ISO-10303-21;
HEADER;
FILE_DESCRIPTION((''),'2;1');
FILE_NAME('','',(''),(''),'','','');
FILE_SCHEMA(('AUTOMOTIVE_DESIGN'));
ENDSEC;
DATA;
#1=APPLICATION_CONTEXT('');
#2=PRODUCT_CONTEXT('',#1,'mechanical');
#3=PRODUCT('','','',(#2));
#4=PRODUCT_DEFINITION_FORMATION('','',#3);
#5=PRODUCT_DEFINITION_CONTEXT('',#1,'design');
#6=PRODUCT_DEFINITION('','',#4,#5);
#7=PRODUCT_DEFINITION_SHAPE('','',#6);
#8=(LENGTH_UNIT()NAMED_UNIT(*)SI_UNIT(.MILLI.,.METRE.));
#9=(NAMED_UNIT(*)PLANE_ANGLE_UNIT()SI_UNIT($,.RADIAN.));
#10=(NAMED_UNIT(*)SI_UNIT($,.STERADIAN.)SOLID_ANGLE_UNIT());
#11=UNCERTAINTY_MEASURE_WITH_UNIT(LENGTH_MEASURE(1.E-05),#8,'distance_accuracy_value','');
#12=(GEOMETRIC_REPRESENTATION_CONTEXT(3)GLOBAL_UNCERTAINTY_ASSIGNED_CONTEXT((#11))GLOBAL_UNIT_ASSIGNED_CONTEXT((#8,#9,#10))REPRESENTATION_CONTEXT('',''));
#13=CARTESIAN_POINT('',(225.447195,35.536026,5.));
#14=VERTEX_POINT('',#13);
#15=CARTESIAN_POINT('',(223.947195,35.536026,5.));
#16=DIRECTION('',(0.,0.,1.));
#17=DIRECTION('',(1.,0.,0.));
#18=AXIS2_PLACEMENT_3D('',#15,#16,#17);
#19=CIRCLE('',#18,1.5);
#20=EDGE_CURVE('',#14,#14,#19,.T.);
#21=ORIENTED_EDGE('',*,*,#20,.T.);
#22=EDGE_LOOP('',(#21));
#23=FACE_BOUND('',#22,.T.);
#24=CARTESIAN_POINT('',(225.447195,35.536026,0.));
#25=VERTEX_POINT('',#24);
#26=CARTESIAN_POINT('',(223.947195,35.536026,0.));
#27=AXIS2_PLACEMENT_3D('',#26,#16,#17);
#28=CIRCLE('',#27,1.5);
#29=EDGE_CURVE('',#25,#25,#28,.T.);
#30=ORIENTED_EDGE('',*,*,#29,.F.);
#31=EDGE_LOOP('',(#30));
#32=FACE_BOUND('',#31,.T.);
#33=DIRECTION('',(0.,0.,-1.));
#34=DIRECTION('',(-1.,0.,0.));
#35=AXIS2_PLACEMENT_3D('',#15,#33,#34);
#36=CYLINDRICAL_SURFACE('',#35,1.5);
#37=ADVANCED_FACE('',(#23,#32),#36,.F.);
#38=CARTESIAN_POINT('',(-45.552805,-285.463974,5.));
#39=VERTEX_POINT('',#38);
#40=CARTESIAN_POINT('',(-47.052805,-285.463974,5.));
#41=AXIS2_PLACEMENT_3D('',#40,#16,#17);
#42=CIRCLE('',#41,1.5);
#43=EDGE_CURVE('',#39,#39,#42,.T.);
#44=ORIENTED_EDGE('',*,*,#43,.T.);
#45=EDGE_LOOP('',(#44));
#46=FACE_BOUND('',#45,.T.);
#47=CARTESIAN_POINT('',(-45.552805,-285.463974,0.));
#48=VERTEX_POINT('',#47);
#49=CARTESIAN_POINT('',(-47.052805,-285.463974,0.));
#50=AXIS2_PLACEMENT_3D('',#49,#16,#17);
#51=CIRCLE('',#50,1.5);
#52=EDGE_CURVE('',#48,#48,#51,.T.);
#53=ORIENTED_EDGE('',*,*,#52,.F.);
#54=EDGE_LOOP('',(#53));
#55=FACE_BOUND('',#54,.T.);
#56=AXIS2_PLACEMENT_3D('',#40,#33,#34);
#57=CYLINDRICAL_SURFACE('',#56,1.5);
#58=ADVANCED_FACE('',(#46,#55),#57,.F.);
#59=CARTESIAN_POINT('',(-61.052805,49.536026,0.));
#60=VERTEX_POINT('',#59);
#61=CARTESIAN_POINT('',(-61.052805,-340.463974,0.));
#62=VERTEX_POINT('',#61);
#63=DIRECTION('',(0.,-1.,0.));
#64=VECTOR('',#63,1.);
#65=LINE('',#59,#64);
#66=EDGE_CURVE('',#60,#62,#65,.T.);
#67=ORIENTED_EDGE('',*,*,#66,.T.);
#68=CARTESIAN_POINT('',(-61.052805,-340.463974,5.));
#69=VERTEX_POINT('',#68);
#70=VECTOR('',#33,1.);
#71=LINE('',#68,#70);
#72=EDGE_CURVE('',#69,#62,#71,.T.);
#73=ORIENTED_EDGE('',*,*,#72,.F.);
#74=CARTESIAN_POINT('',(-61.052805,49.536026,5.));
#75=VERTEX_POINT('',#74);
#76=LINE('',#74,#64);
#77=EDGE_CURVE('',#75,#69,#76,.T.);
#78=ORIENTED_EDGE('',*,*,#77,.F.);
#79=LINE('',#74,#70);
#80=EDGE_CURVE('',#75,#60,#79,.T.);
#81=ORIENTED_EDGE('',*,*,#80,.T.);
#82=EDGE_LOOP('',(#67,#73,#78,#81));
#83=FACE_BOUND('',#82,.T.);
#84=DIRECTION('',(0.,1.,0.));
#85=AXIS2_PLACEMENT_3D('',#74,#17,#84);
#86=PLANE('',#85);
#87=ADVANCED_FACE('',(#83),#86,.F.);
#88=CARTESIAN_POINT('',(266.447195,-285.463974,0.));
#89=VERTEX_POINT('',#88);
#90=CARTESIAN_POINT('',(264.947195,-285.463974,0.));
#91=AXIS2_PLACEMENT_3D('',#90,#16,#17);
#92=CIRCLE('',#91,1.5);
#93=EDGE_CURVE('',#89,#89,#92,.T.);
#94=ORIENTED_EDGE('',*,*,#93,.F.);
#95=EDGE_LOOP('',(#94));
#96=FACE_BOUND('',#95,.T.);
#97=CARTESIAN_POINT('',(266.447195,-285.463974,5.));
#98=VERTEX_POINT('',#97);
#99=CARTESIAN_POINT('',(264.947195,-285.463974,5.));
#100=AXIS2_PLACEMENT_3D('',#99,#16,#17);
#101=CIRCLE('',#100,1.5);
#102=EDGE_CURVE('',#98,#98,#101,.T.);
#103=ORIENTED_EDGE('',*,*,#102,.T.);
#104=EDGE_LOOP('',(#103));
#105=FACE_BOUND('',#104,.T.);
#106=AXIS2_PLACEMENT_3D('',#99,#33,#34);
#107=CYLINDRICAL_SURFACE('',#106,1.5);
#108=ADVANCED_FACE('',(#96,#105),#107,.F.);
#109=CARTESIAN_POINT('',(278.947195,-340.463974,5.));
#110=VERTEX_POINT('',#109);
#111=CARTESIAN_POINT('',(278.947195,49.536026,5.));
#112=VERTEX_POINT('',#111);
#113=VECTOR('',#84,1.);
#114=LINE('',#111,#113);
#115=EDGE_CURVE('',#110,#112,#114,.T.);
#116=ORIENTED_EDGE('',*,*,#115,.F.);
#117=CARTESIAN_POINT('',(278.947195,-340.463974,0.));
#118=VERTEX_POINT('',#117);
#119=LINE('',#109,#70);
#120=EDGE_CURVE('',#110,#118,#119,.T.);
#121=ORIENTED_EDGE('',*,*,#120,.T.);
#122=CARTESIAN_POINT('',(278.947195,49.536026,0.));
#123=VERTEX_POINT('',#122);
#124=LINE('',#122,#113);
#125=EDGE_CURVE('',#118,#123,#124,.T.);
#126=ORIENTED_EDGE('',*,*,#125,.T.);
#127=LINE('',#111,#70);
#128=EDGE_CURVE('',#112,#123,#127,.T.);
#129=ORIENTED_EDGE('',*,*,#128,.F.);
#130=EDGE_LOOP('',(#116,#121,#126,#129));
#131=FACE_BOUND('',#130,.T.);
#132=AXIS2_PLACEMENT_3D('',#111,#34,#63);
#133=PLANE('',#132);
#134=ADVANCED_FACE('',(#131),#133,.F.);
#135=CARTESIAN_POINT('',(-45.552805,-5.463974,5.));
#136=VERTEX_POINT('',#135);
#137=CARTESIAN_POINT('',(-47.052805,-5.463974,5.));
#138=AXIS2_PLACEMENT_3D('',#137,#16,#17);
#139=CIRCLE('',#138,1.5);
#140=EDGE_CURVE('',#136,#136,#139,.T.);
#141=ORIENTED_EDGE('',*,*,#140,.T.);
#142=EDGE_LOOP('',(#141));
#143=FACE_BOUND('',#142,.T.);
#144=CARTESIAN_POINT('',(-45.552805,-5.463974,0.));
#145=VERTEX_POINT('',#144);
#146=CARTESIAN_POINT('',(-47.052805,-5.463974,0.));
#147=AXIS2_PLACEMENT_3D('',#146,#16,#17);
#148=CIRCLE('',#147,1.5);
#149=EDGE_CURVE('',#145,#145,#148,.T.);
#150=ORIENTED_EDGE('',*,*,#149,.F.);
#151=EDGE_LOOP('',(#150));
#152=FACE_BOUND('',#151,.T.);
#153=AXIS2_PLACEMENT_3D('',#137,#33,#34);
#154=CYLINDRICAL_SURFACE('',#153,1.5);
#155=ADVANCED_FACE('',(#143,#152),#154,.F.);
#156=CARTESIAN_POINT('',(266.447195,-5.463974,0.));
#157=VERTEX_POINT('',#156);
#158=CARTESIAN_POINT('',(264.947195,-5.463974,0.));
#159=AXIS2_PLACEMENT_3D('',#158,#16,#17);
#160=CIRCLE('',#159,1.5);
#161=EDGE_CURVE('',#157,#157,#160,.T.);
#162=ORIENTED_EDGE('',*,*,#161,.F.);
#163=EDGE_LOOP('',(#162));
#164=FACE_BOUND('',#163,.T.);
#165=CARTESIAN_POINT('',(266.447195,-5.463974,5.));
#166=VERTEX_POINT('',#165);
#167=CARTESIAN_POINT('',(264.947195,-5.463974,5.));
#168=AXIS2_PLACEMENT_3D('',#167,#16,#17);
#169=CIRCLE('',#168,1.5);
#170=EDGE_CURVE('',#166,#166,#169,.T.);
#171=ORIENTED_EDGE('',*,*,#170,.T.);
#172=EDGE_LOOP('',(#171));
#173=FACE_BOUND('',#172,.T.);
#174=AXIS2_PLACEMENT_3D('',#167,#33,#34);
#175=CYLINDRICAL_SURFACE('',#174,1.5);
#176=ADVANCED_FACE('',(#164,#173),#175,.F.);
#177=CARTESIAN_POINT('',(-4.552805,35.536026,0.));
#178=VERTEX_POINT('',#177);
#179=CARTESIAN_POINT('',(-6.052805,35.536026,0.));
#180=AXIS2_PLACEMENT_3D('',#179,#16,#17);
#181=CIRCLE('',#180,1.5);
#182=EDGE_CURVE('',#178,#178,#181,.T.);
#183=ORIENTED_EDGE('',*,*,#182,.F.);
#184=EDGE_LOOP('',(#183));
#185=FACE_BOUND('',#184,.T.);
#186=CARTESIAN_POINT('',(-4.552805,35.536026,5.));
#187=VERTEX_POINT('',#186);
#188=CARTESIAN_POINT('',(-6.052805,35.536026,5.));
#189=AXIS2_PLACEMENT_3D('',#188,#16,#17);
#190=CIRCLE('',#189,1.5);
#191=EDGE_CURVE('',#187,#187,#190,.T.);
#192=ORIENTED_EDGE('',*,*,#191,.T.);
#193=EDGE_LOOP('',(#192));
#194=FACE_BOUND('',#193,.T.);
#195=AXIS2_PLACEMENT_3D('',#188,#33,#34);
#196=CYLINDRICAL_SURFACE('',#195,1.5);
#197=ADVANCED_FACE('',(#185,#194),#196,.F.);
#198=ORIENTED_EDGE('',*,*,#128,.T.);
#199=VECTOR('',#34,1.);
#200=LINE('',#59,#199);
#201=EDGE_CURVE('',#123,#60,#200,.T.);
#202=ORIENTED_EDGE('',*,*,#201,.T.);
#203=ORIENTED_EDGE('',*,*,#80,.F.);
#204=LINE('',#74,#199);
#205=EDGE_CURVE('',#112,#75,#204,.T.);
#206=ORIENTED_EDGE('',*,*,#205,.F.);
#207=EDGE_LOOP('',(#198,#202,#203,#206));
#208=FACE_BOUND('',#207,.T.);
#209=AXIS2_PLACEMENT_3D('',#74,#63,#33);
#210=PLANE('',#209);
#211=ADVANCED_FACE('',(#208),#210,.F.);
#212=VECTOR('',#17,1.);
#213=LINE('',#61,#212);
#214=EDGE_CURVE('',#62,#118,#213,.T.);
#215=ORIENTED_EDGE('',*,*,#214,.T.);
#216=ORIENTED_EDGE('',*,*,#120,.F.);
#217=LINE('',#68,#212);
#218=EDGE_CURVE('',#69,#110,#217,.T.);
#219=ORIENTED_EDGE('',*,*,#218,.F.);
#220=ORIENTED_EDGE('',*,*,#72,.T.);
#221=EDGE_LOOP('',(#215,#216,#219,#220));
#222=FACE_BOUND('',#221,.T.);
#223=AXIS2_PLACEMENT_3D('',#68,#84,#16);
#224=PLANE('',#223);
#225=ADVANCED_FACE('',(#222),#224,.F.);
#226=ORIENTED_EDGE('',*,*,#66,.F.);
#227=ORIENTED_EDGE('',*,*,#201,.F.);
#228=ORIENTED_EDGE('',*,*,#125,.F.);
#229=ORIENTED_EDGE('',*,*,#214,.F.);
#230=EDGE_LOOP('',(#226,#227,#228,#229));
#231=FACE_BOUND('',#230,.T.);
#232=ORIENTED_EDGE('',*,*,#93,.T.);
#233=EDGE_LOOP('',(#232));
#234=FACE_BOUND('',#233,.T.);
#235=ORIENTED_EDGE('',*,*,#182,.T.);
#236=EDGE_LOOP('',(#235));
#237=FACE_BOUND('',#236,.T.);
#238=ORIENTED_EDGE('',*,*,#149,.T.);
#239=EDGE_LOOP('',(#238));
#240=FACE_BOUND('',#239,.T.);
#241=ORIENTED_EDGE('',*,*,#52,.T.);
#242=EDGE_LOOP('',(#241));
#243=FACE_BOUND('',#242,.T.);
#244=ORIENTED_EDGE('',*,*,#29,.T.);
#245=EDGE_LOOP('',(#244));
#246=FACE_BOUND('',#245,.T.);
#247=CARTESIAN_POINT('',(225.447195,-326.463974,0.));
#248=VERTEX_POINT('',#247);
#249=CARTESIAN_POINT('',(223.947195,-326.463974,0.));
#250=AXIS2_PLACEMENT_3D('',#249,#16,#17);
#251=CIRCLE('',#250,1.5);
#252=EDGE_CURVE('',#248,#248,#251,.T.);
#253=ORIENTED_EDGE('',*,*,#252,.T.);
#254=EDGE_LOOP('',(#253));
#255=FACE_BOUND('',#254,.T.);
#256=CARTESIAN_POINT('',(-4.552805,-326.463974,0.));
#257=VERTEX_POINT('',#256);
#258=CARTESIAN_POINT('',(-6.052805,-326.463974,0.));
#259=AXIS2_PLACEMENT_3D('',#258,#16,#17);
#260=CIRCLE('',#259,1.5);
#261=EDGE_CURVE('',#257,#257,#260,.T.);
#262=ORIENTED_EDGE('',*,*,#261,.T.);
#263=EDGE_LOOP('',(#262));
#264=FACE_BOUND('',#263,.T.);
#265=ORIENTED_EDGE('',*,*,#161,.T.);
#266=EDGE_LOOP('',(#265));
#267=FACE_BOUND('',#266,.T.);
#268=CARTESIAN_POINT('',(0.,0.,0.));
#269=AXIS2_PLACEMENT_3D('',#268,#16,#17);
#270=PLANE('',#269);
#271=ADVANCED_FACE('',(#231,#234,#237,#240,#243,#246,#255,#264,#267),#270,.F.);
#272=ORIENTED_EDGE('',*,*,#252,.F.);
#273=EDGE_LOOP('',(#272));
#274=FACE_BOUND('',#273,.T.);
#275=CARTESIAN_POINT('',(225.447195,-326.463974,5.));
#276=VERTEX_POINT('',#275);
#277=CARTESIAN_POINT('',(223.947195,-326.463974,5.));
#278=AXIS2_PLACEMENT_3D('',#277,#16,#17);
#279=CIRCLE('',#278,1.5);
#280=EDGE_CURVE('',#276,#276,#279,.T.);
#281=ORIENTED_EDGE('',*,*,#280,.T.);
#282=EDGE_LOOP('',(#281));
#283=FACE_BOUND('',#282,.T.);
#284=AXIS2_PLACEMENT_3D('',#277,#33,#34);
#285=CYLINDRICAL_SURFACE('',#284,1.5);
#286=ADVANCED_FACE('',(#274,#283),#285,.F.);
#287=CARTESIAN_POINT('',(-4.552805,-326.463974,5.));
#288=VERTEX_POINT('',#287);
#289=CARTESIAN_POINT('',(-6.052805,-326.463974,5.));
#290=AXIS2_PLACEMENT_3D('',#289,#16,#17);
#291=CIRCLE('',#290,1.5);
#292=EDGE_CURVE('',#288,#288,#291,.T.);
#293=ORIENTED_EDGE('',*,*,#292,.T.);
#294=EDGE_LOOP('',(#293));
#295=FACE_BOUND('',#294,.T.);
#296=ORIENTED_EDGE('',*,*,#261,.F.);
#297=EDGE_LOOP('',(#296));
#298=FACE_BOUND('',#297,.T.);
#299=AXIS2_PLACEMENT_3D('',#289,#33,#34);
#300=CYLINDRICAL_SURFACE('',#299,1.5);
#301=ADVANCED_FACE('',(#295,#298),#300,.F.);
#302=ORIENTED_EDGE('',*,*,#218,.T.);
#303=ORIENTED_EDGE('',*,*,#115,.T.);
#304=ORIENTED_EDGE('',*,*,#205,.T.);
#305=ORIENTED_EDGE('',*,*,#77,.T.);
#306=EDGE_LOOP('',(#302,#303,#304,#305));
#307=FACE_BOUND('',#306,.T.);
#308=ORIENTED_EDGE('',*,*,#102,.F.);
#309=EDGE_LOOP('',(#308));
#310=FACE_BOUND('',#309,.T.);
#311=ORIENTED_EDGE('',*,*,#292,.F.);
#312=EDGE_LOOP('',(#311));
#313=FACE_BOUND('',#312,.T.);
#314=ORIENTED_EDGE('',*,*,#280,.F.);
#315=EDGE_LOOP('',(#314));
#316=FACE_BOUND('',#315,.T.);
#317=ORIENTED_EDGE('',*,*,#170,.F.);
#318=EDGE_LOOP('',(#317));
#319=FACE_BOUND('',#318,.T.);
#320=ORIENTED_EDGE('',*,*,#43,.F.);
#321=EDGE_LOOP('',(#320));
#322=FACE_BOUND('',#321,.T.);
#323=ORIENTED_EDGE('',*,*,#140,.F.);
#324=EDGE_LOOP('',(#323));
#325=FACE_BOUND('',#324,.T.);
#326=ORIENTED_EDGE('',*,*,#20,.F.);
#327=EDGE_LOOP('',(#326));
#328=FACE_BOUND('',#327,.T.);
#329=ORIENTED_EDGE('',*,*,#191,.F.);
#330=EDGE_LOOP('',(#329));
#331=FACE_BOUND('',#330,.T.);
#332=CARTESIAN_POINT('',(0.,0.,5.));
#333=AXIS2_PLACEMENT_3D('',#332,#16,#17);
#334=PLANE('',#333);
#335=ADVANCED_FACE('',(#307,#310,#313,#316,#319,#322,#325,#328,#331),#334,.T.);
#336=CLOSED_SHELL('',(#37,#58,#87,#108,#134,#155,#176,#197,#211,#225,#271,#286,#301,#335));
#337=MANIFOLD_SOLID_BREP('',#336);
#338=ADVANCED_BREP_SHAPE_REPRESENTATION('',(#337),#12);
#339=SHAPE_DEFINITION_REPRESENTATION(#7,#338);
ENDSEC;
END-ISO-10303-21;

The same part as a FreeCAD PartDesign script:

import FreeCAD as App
import Part
import Sketcher
from FreeCAD import Vector
Q = App.Units.Quantity


def add_polygon(sketch, points):
    """Adds a closed chain of lines whose ends are joined by coincident constraints."""
    first, n = sketch.GeometryCount, len(points)
    for a, b in zip(points, points[1:] + points[:1]):
        sketch.addGeometry(Part.LineSegment(App.Vector(*a, 0), App.Vector(*b, 0)), False)
    for i in range(n):
        sketch.addConstraint(Sketcher.Constraint("Coincident", first + i, 2, first + (i + 1) % n, 1))

doc = App.newDocument("Part")
body = doc.addObject("PartDesign::Body", "Body")

# Sketch on XY plane
sketch1 = body.newObject("Sketcher::SketchObject", "Sketch")
sketch1.AttachmentSupport = (doc.getObject("XY_Plane"), [""])
sketch1.MapMode = "FlatFace"
add_polygon(sketch1, [(-61.1, 49.5), (-61.1, -340.5), (278.9, -340.5), (278.9, 49.5)])  # lines 0-3
sketch1.addGeometry(Part.Circle(Vector(-47.1, -285.5, 0), Vector(0, 0, 1), 1.5), False)  # 4
sketch1.addGeometry(Part.Circle(Vector(-6.1, -326.5, 0), Vector(0, 0, 1), 1.5), False)  # 5
sketch1.addGeometry(Part.Circle(Vector(223.9, -326.5, 0), Vector(0, 0, 1), 1.5), False)  # 6
sketch1.addGeometry(Part.Circle(Vector(264.9, -285.5, 0), Vector(0, 0, 1), 1.5), False)  # 7
sketch1.addGeometry(Part.Circle(Vector(-47.1, -5.5, 0), Vector(0, 0, 1), 1.5), False)  # 8
sketch1.addGeometry(Part.Circle(Vector(-6.1, 35.5, 0), Vector(0, 0, 1), 1.5), False)  # 9
sketch1.addGeometry(Part.Circle(Vector(223.9, 35.5, 0), Vector(0, 0, 1), 1.5), False)  # 10
sketch1.addGeometry(Part.Circle(Vector(264.9, -5.5, 0), Vector(0, 0, 1), 1.5), False)  # 11
sketch1.addConstraint([
    Sketcher.Constraint("Vertical", 0),
    Sketcher.Constraint("Horizontal", 1),
    Sketcher.Constraint("Vertical", 2),
    Sketcher.Constraint("Horizontal", 3),
    Sketcher.Constraint("Equal", 4, 5),
    Sketcher.Constraint("Equal", 5, 6),
    Sketcher.Constraint("Equal", 6, 7),
    Sketcher.Constraint("Equal", 7, 8),
    Sketcher.Constraint("Equal", 8, 9),
    Sketcher.Constraint("Equal", 9, 10),
    Sketcher.Constraint("Equal", 10, 11),
    Sketcher.Constraint("Horizontal", 5, 3, 6, 3),
    Sketcher.Constraint("Horizontal", 4, 3, 7, 3),
    Sketcher.Constraint("Horizontal", 9, 3, 10, 3),
    Sketcher.Constraint("Horizontal", 8, 3, 11, 3),
    Sketcher.Constraint("Vertical", 4, 3, 8, 3),
    Sketcher.Constraint("Vertical", 5, 3, 9, 3),
    Sketcher.Constraint("Vertical", 6, 3, 10, 3),
    Sketcher.Constraint("Vertical", 7, 3, 11, 3),
    Sketcher.Constraint("Diameter", 4, Q("3 mm")),
    Sketcher.Constraint("DistanceX", 1, 1, 1, 2, Q("340 mm")),
    Sketcher.Constraint("DistanceY", 0, 2, 0, 1, Q("390 mm")),
    Sketcher.Constraint("DistanceX", 4, 3, 5, 3, Q("41 mm")),
    Sketcher.Constraint("DistanceY", 5, 3, 4, 3, Q("41 mm")),
    Sketcher.Constraint("DistanceX", 5, 3, 6, 3, Q("230 mm")),
    Sketcher.Constraint("DistanceX", 6, 3, 7, 3, Q("41 mm")),
    Sketcher.Constraint("DistanceY", 4, 3, 8, 3, Q("280 mm")),
    Sketcher.Constraint("DistanceY", 8, 3, 9, 3, Q("41 mm")),
    Sketcher.Constraint("DistanceX", 0, 2, 4, 3, Q("14 mm")),
    Sketcher.Constraint("DistanceY", 0, 2, 4, 3, Q("55 mm")),
    Sketcher.Constraint("DistanceX", 4, 3, -1, 1, Q("47.052805 mm")),
    Sketcher.Constraint("DistanceY", 4, 3, -1, 1, Q("285.463974 mm")),
])
pad1 = body.newObject("PartDesign::Pad", "Pad")
pad1.Profile = sketch1
pad1.Length = 5

doc.recompute()
